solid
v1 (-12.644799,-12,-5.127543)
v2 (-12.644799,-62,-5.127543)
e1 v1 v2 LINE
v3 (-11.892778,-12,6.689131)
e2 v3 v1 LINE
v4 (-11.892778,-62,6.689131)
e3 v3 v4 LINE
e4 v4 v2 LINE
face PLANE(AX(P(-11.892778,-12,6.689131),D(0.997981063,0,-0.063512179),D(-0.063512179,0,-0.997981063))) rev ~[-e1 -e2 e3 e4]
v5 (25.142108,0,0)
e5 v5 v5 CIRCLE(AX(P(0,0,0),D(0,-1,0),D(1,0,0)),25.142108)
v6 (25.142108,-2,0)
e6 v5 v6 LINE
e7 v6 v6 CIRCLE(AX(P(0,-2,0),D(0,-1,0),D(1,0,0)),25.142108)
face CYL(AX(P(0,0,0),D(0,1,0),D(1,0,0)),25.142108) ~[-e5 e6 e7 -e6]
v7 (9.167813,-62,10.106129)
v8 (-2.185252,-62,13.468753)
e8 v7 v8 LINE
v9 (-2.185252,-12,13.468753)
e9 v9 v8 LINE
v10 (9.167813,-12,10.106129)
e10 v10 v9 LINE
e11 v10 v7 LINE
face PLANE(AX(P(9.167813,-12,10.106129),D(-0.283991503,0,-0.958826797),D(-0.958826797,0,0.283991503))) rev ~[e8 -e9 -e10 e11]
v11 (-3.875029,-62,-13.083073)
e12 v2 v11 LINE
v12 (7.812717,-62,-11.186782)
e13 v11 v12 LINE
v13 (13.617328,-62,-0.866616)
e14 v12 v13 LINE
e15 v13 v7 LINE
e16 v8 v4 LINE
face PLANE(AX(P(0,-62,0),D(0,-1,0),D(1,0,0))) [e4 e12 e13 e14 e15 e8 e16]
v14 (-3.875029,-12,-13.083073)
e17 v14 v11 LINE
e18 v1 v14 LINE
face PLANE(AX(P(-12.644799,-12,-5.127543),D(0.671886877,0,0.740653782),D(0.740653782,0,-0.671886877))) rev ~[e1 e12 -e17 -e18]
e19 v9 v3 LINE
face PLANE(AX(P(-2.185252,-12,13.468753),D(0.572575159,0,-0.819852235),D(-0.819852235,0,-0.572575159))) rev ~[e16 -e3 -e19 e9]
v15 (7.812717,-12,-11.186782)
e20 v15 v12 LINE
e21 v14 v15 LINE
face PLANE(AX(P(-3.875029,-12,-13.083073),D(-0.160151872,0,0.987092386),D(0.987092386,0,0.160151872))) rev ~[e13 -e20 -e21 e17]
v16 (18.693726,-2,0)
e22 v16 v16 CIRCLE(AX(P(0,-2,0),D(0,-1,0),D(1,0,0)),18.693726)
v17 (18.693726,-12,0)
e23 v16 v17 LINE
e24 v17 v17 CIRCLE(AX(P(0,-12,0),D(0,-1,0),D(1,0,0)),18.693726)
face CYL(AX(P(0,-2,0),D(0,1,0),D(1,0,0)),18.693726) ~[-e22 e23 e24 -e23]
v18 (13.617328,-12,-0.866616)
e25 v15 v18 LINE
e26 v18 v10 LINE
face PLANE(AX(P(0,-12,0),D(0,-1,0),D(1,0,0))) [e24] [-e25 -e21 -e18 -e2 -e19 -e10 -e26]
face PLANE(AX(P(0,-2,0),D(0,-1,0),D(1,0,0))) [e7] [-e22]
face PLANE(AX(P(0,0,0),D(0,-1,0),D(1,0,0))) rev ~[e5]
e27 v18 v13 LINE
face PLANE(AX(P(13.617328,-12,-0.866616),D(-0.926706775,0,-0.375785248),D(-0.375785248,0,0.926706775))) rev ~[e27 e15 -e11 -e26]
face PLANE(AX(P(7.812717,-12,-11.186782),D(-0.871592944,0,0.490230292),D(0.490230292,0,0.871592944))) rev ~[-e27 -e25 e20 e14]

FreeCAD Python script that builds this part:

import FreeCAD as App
import Part
import Sketcher

doc = App.newDocument("Part")
body = doc.addObject("PartDesign::Body", "Body")

# Sketch on XZ plane
sketch1 = doc.addObject("Sketcher::SketchObject", "Sketch")
body.addObject(sketch1)
sketch1.AttachmentSupport = (doc.XZ_Plane, [""])
sketch1.MapMode = "FlatFace"
sketch1.addGeometry(Part.Circle(App.Vector(0, 0, 0), App.Vector(0, 0, 1), 25.142108), False)
sketch1.addConstraint([
    Sketcher.Constraint("Coincident", 0, 3, -1, 1),
    Sketcher.Constraint("Diameter", 0, 50.284216),
])
pad1 = doc.addObject("PartDesign::Pad", "Pad")
body.addObject(pad1)
pad1.Profile = sketch1
pad1.Length = 2

# Sketch on XZ plane
sketch2 = doc.addObject("Sketcher::SketchObject", "Sketch001")
body.addObject(sketch2)
sketch2.AttachmentSupport = (doc.XZ_Plane, [""])
sketch2.MapMode = "FlatFace"
sketch2.AttachmentOffset = App.Placement(App.Vector(0, 0, 2), App.Rotation())
sketch2.addGeometry(Part.Circle(App.Vector(0, 0, 0), App.Vector(0, 0, 1), 18.693726), False)
sketch2.addConstraint([
    Sketcher.Constraint("Coincident", 0, 3, -1, 1),
    Sketcher.Constraint("Diameter", 0, 37.387452),
])
pad2 = doc.addObject("PartDesign::Pad", "Pad001")
body.addObject(pad2)
pad2.Profile = sketch2
pad2.Length = 10

# Sketch on XZ plane
sketch3 = doc.addObject("Sketcher::SketchObject", "Sketch002")
body.addObject(sketch3)
sketch3.AttachmentSupport = (doc.XZ_Plane, [""])
sketch3.MapMode = "FlatFace"
sketch3.AttachmentOffset = App.Placement(App.Vector(0, 0, 12), App.Rotation())
sketch3.addGeometry([
    Part.LineSegment(App.Vector(-12.644799, -5.127543, 0), App.Vector(-3.875029, -13.083073, 0)),  # 0
    Part.LineSegment(App.Vector(-3.875029, -13.083073, 0), App.Vector(7.812717, -11.186782, 0)),  # 1
    Part.LineSegment(App.Vector(7.812717, -11.186782, 0), App.Vector(13.617328, -0.866616, 0)),  # 2
    Part.LineSegment(App.Vector(13.617328, -0.866616, 0), App.Vector(9.167813, 10.106129, 0)),  # 3
    Part.LineSegment(App.Vector(9.167813, 10.106129, 0), App.Vector(-2.185252, 13.468753, 0)),  # 4
    Part.LineSegment(App.Vector(-2.185252, 13.468753, 0), App.Vector(-11.892778, 6.689131, 0)),  # 5
    Part.LineSegment(App.Vector(-11.892778, 6.689131, 0), App.Vector(-12.644799, -5.127543, 0)),  # 6
], False)
sketch3.addConstraint([
    Sketcher.Constraint("Coincident", 0, 2, 1, 1),
    Sketcher.Constraint("Coincident", 1, 2, 2, 1),
    Sketcher.Constraint("Coincident", 2, 2, 3, 1),
    Sketcher.Constraint("Coincident", 3, 2, 4, 1),
    Sketcher.Constraint("Coincident", 4, 2, 5, 1),
    Sketcher.Constraint("Coincident", 5, 2, 6, 1),
    Sketcher.Constraint("Coincident", 6, 2, 0, 1),
    Sketcher.Constraint("DistanceX", 6, 2, -1, 1, 12.644799),
    Sketcher.Constraint("Distance", 0, 11.84058),
    Sketcher.Constraint("Distance", 1, 11.84058),
    Sketcher.Constraint("Distance", 2, 11.84058),
    Sketcher.Constraint("Distance", 3, 11.840579),
    Sketcher.Constraint("Distance", 4, 11.84058),
    Sketcher.Constraint("Distance", 5, 11.84058),
    Sketcher.Constraint("Distance", 6, 11.840579),
    Sketcher.Constraint("DistanceX", 0, 2, -1, 1, 3.875029),
    Sketcher.Constraint("DistanceY", 1, 2, -1, 1, 11.186782),
    Sketcher.Constraint("DistanceY", -1, 1, 3, 2, 10.106129),
    Sketcher.Constraint("DistanceY", -1, 1, 5, 2, 6.689131),
    Sketcher.Constraint("DistanceY", 0, 2, 1, 2, 1.896291),
    Sketcher.Constraint("DistanceX", 1, 2, 2, 2, 5.804611),
])
pad3 = doc.addObject("PartDesign::Pad", "Pad002")
body.addObject(pad3)
pad3.Profile = sketch3
pad3.Length = 50

doc.recompute()
